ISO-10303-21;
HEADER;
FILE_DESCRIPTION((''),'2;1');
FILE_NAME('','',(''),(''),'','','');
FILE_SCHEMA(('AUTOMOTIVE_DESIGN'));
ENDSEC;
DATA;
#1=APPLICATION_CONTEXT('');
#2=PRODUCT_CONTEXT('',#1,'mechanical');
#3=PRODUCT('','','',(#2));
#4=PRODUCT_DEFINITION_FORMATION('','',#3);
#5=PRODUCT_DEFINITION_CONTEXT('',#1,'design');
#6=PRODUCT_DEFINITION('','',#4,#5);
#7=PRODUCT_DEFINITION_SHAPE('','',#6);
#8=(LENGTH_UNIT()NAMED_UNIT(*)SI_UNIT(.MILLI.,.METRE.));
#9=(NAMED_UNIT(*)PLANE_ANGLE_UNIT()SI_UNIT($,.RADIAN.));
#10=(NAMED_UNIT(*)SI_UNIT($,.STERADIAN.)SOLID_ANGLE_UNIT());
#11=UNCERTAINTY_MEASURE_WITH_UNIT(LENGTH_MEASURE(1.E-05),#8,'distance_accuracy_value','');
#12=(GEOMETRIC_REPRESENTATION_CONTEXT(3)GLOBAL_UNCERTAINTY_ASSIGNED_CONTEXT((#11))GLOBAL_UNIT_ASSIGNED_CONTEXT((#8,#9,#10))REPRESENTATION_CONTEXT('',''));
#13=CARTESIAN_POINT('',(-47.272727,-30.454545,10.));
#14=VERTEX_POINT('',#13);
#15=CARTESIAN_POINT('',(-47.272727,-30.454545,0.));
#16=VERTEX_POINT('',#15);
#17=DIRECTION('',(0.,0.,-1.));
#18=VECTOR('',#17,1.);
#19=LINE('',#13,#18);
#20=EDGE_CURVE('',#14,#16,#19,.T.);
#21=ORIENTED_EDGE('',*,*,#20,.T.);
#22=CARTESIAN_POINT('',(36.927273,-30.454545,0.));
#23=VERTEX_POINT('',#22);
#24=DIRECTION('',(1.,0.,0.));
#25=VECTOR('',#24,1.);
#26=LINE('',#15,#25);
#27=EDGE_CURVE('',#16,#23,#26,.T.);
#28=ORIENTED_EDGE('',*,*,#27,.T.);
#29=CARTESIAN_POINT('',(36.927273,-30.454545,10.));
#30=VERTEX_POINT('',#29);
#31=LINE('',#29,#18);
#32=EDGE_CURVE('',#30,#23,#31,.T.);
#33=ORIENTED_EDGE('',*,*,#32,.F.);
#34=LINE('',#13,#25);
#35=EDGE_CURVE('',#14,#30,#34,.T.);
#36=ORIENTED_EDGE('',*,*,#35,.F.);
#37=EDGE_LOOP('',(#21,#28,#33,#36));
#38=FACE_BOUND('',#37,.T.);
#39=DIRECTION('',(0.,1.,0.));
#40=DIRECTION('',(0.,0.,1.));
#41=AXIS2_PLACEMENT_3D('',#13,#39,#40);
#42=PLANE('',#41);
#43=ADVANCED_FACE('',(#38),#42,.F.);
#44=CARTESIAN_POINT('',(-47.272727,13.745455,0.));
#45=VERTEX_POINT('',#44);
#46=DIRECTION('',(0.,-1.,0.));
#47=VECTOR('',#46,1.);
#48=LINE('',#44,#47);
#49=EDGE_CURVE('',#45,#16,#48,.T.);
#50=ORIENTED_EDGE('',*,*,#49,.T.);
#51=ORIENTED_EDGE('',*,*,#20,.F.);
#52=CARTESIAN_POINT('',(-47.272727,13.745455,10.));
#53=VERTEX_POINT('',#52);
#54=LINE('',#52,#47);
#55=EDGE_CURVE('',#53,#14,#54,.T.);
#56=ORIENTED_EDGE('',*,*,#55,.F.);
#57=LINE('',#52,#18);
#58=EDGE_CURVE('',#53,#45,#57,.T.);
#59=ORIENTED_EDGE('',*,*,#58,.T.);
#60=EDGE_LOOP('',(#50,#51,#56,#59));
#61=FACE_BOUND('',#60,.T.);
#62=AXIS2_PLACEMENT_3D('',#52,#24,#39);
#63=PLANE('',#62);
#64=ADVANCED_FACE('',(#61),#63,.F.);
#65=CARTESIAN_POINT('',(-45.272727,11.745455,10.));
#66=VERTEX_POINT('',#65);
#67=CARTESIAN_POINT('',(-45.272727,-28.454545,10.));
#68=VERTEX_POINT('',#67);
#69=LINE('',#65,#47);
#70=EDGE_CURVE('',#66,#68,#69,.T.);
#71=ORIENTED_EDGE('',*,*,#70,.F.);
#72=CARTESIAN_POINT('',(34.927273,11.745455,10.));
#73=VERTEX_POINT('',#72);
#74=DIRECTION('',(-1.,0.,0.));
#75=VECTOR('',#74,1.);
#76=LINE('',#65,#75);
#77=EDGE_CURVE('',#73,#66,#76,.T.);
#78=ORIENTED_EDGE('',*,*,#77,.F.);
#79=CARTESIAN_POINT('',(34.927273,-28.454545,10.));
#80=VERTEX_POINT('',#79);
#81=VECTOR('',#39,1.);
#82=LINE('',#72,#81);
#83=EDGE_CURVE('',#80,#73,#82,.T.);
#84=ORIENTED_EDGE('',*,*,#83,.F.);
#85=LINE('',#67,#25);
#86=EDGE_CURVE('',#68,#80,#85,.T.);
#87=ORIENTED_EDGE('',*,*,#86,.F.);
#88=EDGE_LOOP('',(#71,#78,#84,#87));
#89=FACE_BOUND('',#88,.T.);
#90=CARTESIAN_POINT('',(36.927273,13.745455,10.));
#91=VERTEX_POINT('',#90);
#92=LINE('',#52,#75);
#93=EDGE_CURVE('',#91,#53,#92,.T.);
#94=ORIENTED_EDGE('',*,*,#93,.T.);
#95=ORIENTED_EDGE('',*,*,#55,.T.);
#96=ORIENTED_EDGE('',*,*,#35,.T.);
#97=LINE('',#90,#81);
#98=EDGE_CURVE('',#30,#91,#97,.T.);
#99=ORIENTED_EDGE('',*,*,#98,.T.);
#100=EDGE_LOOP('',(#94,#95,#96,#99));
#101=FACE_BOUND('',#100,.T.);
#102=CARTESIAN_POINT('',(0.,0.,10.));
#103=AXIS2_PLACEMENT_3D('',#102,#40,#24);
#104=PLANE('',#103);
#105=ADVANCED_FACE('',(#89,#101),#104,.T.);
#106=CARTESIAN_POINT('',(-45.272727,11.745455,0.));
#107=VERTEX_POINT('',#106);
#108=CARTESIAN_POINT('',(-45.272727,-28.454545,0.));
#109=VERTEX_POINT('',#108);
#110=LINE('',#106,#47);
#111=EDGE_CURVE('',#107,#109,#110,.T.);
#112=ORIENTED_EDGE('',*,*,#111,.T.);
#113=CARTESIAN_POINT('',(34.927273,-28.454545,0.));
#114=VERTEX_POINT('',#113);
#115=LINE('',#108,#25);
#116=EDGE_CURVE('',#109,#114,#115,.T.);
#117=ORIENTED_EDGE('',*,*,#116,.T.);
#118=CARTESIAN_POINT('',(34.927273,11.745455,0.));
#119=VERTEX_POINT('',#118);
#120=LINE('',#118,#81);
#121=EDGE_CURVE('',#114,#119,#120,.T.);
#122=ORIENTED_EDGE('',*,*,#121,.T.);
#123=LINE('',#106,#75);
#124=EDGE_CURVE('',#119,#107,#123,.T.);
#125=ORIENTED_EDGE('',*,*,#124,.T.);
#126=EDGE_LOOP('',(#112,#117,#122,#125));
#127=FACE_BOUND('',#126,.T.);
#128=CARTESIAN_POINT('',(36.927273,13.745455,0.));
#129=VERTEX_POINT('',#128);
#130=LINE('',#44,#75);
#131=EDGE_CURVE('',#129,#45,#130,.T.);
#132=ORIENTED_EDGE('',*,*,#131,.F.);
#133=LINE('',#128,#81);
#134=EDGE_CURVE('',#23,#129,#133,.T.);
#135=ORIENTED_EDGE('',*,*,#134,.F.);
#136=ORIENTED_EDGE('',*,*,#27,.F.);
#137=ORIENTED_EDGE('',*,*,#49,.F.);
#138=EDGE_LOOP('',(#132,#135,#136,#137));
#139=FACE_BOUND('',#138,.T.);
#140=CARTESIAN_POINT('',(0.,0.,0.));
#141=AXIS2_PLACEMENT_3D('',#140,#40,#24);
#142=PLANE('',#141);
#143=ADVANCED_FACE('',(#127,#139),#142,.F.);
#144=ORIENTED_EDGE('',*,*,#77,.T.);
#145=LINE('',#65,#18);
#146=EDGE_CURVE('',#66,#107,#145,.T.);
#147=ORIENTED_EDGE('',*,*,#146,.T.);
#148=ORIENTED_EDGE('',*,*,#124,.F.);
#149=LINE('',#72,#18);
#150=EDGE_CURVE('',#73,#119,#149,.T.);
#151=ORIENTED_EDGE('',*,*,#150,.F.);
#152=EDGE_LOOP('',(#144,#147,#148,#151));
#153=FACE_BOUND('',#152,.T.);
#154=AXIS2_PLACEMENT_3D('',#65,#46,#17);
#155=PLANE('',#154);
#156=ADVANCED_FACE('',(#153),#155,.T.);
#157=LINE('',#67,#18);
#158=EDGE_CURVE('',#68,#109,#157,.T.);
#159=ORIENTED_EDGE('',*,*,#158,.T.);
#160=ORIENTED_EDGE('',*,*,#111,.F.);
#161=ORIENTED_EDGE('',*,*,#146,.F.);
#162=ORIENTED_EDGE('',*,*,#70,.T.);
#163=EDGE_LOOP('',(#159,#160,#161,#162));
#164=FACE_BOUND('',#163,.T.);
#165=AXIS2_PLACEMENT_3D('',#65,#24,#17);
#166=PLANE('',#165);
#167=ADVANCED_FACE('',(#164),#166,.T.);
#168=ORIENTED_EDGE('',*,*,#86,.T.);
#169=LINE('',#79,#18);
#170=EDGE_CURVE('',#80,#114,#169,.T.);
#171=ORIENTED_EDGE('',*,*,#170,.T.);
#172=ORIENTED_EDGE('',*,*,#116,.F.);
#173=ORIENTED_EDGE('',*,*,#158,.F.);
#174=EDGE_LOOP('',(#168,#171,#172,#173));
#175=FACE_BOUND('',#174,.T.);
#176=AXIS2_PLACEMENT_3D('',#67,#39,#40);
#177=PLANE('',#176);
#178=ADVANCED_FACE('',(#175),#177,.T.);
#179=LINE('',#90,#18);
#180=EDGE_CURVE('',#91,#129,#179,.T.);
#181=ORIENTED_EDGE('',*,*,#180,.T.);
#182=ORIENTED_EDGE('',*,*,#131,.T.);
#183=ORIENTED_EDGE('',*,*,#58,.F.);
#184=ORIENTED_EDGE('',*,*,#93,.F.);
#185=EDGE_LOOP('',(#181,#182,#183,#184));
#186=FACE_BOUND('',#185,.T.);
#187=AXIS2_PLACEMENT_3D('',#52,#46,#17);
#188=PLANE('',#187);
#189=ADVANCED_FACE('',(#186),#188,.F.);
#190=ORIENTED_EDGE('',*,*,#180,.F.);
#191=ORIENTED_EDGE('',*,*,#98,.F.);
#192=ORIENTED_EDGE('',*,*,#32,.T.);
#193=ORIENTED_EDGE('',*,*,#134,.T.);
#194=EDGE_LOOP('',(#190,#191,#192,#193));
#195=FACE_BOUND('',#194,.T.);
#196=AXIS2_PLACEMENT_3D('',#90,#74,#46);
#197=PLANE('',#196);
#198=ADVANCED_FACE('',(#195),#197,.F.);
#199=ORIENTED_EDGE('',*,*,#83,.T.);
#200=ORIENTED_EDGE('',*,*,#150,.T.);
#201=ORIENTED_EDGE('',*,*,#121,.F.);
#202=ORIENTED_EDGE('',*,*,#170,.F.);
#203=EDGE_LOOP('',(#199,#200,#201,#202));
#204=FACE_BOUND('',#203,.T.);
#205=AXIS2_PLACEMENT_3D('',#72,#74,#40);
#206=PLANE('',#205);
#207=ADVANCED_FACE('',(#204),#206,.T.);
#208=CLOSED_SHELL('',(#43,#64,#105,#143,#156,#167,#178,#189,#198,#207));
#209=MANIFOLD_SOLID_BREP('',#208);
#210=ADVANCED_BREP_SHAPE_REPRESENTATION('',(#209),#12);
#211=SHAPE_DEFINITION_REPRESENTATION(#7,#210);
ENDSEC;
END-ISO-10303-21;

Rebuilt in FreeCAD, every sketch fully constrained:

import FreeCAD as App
import Part
import Sketcher

V = App.Vector

doc = App.newDocument("Part")
body = doc.addObject("PartDesign::Body", "Body")

sketch1 = body.newObject("Sketcher::SketchObject", "Sketch")
sketch1.AttachmentSupport = (doc.getObject("XY_Plane"), [""])
sketch1.MapMode = "FlatFace"
sketch1.addGeometry([
    Part.LineSegment(V(-47, 14, 0), V(-47, -30, 0)),
    Part.LineSegment(V(-47, -30, 0), V(37, -30, 0)),
    Part.LineSegment(V(37, -30, 0), V(37, 14, 0)),
    Part.LineSegment(V(37, 14, 0), V(-47, 14, 0)),
    Part.LineSegment(V(35, -28, 0), V(-45, -28, 0)),
    Part.LineSegment(V(-45, -28, 0), V(-45, 12, 0)),
    Part.LineSegment(V(-45, 12, 0), V(35, 12, 0)),
    Part.LineSegment(V(35, 12, 0), V(35, -28, 0)),
], False)
sketch1.addConstraint([
    Sketcher.Constraint("Coincident", 0, 2, 1, 1),
    Sketcher.Constraint("Coincident", 1, 2, 2, 1),
    Sketcher.Constraint("Coincident", 2, 2, 3, 1),
    Sketcher.Constraint("Coincident", 3, 2, 0, 1),
    Sketcher.Constraint("Coincident", 4, 2, 5, 1),
    Sketcher.Constraint("Coincident", 5, 2, 6, 1),
    Sketcher.Constraint("Coincident", 6, 2, 7, 1),
    Sketcher.Constraint("Coincident", 7, 2, 4, 1),
    Sketcher.Constraint("Vertical", 0),
    Sketcher.Constraint("Horizontal", 1),
    Sketcher.Constraint("Vertical", 2),
    Sketcher.Constraint("Horizontal", 3),
    Sketcher.Constraint("Horizontal", 4),
    Sketcher.Constraint("Vertical", 5),
    Sketcher.Constraint("Horizontal", 6),
    Sketcher.Constraint("Vertical", 7),
    Sketcher.Constraint("DistanceX", 1, 1, 1, 2, 84.2),
    Sketcher.Constraint("DistanceX", 4, 2, 4, 1, 80.2),
    Sketcher.Constraint("DistanceY", 0, 2, 0, 1, 44.2),
    Sketcher.Constraint("DistanceY", 5, 1, 5, 2, 40.2),
    Sketcher.Constraint("DistanceX", 0, 2, 4, 2, 2.0),
    Sketcher.Constraint("DistanceY", 0, 2, 4, 2, 2.0),
    Sketcher.Constraint("DistanceX", 0, 2, -1, 1, 47.272727),
    Sketcher.Constraint("DistanceY", 0, 2, -1, 1, 30.454545),
])
pad1 = body.newObject("PartDesign::Pad", "Pad")
pad1.Profile = sketch1
pad1.Length = 10

doc.recompute()
